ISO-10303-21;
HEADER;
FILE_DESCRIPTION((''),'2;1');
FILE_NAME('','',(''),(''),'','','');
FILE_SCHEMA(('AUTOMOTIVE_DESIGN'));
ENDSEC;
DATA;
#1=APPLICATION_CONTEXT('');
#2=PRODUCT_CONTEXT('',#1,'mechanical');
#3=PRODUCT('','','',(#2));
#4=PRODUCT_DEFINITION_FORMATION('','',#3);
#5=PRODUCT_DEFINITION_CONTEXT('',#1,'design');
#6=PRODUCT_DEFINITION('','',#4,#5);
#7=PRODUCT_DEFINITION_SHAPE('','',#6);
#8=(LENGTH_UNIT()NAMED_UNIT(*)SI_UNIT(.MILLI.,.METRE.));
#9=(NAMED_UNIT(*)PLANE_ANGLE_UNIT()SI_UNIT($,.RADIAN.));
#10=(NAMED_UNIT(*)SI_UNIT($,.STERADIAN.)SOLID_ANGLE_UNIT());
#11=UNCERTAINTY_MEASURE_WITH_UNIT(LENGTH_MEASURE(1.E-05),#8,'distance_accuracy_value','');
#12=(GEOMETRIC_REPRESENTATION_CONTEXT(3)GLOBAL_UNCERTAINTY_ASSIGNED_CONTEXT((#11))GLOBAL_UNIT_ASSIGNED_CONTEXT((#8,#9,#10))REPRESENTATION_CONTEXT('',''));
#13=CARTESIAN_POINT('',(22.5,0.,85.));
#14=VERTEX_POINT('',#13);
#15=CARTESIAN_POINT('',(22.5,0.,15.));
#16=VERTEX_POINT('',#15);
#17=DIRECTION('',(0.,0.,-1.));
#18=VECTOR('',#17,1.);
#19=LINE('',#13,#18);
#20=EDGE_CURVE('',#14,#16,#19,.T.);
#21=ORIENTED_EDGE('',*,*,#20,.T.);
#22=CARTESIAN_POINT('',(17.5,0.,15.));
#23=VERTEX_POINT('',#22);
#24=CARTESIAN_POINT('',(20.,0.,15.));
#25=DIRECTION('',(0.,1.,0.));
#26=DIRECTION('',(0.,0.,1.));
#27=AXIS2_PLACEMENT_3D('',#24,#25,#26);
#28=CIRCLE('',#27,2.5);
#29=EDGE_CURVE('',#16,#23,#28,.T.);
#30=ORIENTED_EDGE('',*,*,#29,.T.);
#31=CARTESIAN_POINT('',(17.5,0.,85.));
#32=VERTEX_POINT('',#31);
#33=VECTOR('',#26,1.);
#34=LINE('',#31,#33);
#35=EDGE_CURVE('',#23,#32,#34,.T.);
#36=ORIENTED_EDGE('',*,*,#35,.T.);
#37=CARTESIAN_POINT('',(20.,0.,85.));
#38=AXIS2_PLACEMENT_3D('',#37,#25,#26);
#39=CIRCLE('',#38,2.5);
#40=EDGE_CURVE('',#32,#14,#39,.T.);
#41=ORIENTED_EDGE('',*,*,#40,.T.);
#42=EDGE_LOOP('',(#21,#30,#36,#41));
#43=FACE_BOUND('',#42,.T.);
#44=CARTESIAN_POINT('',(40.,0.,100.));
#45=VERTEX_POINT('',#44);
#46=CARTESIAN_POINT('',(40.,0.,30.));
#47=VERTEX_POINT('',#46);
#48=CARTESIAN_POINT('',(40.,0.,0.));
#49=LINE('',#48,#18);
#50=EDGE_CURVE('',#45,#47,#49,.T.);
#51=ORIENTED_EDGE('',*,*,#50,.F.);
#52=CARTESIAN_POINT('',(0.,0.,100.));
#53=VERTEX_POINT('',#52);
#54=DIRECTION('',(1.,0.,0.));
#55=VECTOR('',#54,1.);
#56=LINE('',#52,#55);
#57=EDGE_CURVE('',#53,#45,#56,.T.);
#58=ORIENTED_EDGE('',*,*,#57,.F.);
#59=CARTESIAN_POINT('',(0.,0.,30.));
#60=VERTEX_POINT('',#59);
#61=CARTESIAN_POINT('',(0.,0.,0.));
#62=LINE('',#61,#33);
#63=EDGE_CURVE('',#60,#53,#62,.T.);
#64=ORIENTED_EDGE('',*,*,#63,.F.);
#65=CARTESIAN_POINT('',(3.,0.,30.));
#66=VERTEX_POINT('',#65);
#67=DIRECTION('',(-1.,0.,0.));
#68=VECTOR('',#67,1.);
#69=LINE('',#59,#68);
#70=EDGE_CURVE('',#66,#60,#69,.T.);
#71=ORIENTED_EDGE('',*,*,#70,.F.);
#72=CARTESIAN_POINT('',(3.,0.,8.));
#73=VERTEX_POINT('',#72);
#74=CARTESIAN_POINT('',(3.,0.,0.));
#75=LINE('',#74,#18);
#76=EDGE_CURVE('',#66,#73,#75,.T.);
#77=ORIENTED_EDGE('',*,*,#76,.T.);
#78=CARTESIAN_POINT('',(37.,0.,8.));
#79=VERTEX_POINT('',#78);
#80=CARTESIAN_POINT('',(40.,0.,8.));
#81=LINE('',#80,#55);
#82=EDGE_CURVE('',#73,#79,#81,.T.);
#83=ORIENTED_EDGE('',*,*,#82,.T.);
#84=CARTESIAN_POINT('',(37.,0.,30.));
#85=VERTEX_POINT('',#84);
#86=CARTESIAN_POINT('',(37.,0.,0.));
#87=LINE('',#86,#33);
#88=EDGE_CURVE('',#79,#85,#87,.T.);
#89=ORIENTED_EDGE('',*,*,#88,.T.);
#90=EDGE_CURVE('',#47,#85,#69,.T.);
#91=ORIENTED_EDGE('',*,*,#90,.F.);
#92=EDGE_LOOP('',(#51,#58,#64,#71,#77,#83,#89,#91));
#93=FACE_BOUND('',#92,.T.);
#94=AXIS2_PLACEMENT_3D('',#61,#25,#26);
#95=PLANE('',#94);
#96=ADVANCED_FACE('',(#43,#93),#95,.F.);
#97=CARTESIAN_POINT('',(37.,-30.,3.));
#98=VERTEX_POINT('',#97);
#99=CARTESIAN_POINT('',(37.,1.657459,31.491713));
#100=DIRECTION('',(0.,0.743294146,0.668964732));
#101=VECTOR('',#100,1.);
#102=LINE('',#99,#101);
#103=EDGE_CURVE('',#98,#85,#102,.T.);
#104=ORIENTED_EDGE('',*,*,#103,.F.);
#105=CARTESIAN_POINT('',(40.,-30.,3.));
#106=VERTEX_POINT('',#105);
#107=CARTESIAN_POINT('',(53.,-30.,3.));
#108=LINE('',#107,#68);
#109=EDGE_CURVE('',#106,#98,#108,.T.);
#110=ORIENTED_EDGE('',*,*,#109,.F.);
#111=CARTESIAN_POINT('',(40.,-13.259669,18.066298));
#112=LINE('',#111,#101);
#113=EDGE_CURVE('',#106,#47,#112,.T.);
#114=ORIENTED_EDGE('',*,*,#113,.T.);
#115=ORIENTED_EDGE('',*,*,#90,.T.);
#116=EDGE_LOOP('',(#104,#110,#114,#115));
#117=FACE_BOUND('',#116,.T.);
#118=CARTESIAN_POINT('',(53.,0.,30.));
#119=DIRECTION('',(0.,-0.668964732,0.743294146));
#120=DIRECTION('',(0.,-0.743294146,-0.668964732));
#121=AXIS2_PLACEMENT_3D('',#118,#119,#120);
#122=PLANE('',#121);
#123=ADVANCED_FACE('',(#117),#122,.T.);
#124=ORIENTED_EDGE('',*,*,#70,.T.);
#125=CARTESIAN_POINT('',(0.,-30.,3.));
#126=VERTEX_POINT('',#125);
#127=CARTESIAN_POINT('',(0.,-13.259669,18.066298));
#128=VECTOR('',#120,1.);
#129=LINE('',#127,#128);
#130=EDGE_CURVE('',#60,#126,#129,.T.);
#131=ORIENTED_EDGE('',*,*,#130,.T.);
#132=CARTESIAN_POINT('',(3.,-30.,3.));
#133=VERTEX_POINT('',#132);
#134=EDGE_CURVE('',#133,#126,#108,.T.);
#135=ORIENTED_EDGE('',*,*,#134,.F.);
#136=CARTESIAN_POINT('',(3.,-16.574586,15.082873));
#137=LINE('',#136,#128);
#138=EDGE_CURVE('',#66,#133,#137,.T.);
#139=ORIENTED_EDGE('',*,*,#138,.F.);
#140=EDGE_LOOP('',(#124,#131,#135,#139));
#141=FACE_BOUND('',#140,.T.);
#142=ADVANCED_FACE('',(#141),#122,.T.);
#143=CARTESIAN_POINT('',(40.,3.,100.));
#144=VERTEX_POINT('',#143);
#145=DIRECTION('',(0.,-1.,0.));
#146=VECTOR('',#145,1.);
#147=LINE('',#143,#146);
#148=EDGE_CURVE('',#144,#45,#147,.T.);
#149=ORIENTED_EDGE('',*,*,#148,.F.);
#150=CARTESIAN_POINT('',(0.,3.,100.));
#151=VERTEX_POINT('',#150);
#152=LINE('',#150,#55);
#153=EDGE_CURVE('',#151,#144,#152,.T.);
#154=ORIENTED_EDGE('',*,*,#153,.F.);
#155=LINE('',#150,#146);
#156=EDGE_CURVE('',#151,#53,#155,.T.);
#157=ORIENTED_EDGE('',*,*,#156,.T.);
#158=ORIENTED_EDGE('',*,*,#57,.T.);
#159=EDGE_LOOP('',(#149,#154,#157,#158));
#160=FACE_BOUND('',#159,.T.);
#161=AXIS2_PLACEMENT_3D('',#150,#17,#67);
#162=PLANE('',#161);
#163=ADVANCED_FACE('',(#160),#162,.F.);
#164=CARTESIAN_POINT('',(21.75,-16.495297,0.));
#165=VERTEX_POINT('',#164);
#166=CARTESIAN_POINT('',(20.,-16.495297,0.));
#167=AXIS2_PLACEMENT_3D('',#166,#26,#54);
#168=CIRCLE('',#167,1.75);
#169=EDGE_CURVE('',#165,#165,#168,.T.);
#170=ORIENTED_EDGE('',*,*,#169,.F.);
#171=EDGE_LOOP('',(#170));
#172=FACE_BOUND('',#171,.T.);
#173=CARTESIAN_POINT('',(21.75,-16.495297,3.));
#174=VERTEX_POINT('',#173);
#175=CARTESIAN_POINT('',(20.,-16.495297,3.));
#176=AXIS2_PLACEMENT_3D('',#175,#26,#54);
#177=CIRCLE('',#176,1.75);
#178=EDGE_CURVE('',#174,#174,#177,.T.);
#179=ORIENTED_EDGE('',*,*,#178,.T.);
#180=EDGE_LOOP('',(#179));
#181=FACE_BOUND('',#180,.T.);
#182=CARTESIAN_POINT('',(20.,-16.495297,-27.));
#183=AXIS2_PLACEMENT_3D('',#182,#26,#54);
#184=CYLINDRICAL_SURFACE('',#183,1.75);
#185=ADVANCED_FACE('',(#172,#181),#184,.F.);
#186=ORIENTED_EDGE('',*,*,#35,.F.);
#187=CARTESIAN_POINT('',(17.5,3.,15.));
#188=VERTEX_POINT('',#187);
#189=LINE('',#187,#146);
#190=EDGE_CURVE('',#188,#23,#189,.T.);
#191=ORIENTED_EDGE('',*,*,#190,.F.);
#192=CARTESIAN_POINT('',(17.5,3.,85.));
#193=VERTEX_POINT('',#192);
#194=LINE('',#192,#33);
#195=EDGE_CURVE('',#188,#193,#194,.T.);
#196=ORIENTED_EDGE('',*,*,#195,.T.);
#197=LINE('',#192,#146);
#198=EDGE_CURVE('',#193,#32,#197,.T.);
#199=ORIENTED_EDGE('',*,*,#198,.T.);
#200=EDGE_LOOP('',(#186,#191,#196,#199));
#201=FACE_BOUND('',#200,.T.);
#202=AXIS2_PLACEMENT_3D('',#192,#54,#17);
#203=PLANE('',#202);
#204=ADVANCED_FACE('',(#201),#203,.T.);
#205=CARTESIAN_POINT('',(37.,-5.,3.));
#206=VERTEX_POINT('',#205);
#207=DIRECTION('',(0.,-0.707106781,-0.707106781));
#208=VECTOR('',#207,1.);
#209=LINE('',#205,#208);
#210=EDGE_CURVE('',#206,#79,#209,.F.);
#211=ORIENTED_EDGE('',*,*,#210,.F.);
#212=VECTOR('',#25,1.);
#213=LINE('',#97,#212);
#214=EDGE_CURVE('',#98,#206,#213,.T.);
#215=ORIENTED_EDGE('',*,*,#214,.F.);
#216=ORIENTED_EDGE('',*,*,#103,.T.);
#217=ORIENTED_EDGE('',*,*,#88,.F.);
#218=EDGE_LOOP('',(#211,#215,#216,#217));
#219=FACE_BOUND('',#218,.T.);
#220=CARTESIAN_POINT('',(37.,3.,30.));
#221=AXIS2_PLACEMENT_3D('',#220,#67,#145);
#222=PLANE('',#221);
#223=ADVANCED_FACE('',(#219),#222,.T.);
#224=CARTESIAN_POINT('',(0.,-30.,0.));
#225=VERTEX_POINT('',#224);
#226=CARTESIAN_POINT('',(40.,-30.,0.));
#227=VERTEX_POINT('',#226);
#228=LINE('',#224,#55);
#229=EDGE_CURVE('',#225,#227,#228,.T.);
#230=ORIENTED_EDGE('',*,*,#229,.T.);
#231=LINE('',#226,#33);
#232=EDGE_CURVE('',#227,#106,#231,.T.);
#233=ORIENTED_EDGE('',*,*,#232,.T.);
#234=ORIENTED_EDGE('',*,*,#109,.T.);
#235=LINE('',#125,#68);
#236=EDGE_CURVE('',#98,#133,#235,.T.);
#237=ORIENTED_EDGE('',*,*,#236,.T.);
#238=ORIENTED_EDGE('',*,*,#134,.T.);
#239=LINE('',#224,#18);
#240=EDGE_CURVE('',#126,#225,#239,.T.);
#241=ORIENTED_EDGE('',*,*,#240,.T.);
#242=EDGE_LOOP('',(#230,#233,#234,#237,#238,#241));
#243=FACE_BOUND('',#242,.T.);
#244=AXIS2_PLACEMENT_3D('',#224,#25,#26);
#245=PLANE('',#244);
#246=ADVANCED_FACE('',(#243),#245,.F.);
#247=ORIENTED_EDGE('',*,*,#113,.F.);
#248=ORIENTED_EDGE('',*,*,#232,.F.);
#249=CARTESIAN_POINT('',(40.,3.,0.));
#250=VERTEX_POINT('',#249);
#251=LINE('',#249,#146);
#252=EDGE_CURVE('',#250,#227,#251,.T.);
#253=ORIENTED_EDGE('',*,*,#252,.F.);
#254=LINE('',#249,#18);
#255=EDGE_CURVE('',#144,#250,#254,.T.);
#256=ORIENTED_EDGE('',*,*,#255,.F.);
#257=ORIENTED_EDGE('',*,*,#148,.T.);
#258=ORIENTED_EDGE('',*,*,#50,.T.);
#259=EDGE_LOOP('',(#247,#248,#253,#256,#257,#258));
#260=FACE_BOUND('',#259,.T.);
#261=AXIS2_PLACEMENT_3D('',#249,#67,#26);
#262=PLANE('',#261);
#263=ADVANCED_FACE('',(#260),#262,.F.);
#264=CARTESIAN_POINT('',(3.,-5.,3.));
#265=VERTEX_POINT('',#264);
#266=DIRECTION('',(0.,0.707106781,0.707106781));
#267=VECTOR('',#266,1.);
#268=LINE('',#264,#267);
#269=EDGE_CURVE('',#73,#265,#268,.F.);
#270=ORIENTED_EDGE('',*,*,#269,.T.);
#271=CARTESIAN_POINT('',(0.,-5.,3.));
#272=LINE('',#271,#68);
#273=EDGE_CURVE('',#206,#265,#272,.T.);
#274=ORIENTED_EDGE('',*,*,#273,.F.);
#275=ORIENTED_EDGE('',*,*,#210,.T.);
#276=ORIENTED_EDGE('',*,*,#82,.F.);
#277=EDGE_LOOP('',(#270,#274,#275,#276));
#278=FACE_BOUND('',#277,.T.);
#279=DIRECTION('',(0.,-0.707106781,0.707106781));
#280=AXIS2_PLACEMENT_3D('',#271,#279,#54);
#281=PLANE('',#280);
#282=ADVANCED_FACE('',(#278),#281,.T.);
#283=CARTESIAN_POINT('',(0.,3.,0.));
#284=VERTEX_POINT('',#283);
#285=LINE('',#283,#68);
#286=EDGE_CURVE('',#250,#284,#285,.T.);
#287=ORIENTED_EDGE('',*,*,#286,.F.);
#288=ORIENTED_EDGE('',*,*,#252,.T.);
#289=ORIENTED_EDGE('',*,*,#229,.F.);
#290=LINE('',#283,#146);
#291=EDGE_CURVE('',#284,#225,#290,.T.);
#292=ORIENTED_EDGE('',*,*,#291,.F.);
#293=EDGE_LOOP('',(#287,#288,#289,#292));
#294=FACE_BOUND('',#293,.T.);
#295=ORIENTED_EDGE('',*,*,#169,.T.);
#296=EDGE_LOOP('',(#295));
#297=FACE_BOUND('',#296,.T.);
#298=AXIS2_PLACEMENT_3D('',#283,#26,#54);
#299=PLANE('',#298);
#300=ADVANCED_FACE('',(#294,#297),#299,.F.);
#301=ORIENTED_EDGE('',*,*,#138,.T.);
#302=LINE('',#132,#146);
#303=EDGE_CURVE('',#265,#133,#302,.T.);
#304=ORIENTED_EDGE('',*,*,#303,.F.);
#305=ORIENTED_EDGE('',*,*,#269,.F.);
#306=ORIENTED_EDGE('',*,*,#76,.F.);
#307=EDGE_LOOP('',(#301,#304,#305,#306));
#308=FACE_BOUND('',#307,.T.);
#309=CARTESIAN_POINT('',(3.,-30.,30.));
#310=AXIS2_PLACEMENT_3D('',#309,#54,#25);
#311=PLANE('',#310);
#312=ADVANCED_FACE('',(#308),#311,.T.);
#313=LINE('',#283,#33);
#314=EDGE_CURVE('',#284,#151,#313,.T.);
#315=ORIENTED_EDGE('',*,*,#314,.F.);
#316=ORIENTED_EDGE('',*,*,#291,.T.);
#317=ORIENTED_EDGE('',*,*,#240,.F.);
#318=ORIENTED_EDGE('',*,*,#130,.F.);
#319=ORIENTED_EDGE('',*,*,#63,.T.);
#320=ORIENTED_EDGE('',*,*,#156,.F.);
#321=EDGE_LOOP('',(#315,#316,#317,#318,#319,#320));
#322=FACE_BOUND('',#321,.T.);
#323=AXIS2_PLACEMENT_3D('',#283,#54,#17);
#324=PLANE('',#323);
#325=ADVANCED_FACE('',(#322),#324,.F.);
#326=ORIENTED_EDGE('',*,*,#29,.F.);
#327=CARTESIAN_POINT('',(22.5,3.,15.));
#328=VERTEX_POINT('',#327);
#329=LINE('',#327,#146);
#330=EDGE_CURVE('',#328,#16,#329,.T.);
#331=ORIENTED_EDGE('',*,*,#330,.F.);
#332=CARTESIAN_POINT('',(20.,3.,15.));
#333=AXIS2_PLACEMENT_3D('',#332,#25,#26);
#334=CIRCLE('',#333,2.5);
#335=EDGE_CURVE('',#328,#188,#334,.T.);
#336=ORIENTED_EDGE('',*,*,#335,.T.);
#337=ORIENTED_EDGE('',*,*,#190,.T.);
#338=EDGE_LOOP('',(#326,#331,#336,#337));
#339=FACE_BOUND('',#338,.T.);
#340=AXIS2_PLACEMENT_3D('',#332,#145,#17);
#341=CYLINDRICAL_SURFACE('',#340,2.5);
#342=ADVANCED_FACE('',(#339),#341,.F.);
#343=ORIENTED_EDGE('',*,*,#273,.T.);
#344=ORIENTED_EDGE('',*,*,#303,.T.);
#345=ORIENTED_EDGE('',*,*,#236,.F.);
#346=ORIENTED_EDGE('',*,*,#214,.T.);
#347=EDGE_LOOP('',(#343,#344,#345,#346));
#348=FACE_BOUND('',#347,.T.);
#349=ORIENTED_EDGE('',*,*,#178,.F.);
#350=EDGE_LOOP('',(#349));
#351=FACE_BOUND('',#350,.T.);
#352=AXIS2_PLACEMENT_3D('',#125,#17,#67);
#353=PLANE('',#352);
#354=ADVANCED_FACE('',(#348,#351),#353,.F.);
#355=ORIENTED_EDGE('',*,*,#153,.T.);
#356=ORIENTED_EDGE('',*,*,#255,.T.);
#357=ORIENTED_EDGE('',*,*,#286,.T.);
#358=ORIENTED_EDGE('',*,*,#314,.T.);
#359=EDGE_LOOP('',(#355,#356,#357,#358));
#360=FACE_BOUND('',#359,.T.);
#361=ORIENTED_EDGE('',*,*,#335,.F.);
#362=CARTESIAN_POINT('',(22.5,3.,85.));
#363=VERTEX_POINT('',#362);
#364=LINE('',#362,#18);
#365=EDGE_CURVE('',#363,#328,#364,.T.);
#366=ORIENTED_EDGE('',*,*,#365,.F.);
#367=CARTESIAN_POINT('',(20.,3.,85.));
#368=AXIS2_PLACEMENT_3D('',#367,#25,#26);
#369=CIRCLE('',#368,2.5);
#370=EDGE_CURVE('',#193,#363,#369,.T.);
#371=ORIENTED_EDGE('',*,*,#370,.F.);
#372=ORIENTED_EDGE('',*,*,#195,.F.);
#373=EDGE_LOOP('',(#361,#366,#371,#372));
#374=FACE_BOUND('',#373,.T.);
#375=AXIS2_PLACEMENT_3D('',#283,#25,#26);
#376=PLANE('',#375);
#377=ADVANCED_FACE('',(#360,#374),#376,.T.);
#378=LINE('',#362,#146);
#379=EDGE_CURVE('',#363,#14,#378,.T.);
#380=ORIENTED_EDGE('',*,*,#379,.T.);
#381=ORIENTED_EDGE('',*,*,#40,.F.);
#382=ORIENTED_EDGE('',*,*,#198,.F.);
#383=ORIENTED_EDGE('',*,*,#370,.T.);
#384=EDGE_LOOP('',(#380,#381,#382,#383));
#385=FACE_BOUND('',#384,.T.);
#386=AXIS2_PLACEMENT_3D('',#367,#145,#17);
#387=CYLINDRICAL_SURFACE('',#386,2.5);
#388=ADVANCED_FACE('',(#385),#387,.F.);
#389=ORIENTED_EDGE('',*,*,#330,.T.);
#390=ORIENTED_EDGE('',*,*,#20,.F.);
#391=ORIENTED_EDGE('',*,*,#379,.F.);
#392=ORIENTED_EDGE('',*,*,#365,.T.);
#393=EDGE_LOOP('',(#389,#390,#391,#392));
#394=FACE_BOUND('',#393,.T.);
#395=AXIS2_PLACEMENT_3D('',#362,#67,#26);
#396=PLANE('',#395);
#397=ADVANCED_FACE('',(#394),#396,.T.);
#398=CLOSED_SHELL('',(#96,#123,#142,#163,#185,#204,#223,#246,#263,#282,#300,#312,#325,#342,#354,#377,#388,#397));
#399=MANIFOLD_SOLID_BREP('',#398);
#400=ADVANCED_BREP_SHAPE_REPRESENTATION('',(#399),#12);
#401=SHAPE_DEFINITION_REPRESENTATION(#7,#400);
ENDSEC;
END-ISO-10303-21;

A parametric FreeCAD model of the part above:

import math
import FreeCAD as App
import Part
import Sketcher
Q = App.Units.Quantity


def edges_at(feature, points):
    """Names of the edges that pass closest to the given points."""
    edges = feature.Shape.Edges
    near = lambda p: min(range(len(edges)), key=lambda i: edges[i].distToShape(Part.Vertex(*p))[0])
    return sorted({f"Edge{near(p) + 1}" for p in points})


def add_polygon(sketch, points):
    """Adds a closed chain of lines whose ends are joined by coincident constraints."""
    first, n = sketch.GeometryCount, len(points)
    for a, b in zip(points, points[1:] + points[:1]):
        sketch.addGeometry(Part.LineSegment(App.Vector(*a, 0), App.Vector(*b, 0)), False)
    for i in range(n):
        sketch.addConstraint(Sketcher.Constraint("Coincident", first + i, 2, first + (i + 1) % n, 1))

doc = App.newDocument("Part")
params = doc.addObject("Spreadsheet::Sheet", "Params")
for row, (alias, value) in enumerate([
    ("sketch1_radius", "2.5 mm"),
    ("sketch1_width", "40 mm"),
    ("sketch1_height", "100 mm"),
    ("sketch1_height2", "70 mm"),
    ("pad1_length", "3 mm"),
    ("sketch2_width", "40 mm"),
    ("sketch2_height", "3 mm"),
    ("pad2_length", "30 mm"),
    ("chamfer_size", "5 mm"),
    ("sketch3_width", "3 mm"),
    ("sketch3_height", "33 mm"),
    ("pad3_length", "30 mm"),
    ("sketch4_width", "30 mm"),
    ("sketch4_height", "27 mm"),
    ("sketch5_diameter", "3.5 mm"),
    ("pocket2_length", "30 mm"),
], start=1):
    params.set(f"A{row}", alias)
    params.set(f"B{row}", "=" + value)
    params.setAlias(f"B{row}", alias)

body = doc.addObject("PartDesign::Body", "Body")

# Sketch on XZ plane
sketch1 = body.newObject("Sketcher::SketchObject", "Sketch")
sketch1.AttachmentSupport = (doc.getObject("XZ_Plane"), [""])
sketch1.MapMode = "FlatFace"
add_polygon(sketch1, [(0, 0), (0, 100), (40, 100), (40, 0)])  # lines 0-3
sketch1.addGeometry(Part.ArcOfCircle(Part.Circle(App.Vector(20, 85, 0), App.Vector(0, 0, 1), 2.5), math.radians(0), math.radians(180)), False)  # 4
sketch1.addGeometry(Part.LineSegment(App.Vector(17.5, 85, 0), App.Vector(17.5, 15, 0)), False)  # 5
sketch1.addGeometry(Part.ArcOfCircle(Part.Circle(App.Vector(20, 15, 0), App.Vector(0, 0, 1), 2.5), math.radians(180), math.radians(360)), False)  # 6
sketch1.addGeometry(Part.LineSegment(App.Vector(22.5, 15, 0), App.Vector(22.5, 85, 0)), False)  # 7
sketch1.addConstraint([
    Sketcher.Constraint("Tangent", 4, 2, 5, 1),
    Sketcher.Constraint("Tangent", 5, 2, 6, 1),
    Sketcher.Constraint("Tangent", 6, 2, 7, 1),
    Sketcher.Constraint("Tangent", 7, 2, 4, 1),
    Sketcher.Constraint("Vertical", 0),
    Sketcher.Constraint("Horizontal", 1),
    Sketcher.Constraint("Vertical", 2),
    Sketcher.Constraint("Horizontal", 3),
    Sketcher.Constraint("Vertical", 5),
    Sketcher.Constraint("Vertical", 7),
    Sketcher.Constraint("Coincident", 3, 2, -1, 1),
    Sketcher.Constraint("Radius", 4, Q("2.5 mm")),
    Sketcher.Constraint("DistanceX", 1, 1, 1, 2, Q("40 mm")),
    Sketcher.Constraint("DistanceY", 0, 1, 0, 2, Q("100 mm")),
    Sketcher.Constraint("DistanceY", 5, 2, 5, 1, Q("70 mm")),
    Sketcher.Constraint("DistanceX", -1, 1, 4, 3, Q("20 mm")),
    Sketcher.Constraint("DistanceY", -1, 1, 4, 3, Q("85 mm")),
])
sketch1.setExpression("Constraints[15]", "Params.sketch1_radius")
sketch1.setExpression("Constraints[16]", "Params.sketch1_width")
sketch1.setExpression("Constraints[17]", "Params.sketch1_height")
sketch1.setExpression("Constraints[18]", "Params.sketch1_height2")
pad1 = body.newObject("PartDesign::Pad", "Pad")
pad1.Profile = sketch1
pad1.setExpression("Length", "Params.pad1_length")
pad1.Reversed = True

# Sketch on XZ plane
sketch2 = body.newObject("Sketcher::SketchObject", "Sketch001")
sketch2.AttachmentSupport = (doc.getObject("XZ_Plane"), [""])
sketch2.MapMode = "FlatFace"
add_polygon(sketch2, [(0, 3), (0, 0), (40, 0), (40, 3)])  # lines 0-3
sketch2.addConstraint([
    Sketcher.Constraint("Vertical", 0),
    Sketcher.Constraint("Horizontal", 1),
    Sketcher.Constraint("Vertical", 2),
    Sketcher.Constraint("Horizontal", 3),
    Sketcher.Constraint("Coincident", 0, 2, -1, 1),
    Sketcher.Constraint("DistanceX", 1, 1, 1, 2, Q("40 mm")),
    Sketcher.Constraint("DistanceY", 0, 2, 0, 1, Q("3 mm")),
])
sketch2.setExpression("Constraints[9]", "Params.sketch2_width")
sketch2.setExpression("Constraints[10]", "Params.sketch2_height")
pad2 = body.newObject("PartDesign::Pad", "Pad001")
pad2.Profile = sketch2
pad2.setExpression("Length", "Params.pad2_length")
doc.recompute()

chamfer = body.newObject("PartDesign::Chamfer", "Chamfer")
chamfer.Base = (pad2, edges_at(pad2, [(20, 0, 3)]))
chamfer.setExpression("Size", "Params.chamfer_size")

# Sketch on XY plane
sketch3 = body.newObject("Sketcher::SketchObject", "Sketch002")
sketch3.AttachmentSupport = (doc.getObject("XY_Plane"), [""])
sketch3.MapMode = "FlatFace"
add_polygon(sketch3, [(3, 3), (3, -30), (0, -30), (0, 3)])  # lines 0-3
add_polygon(sketch3, [(40, 3), (40, -30), (37, -30), (37, 3)])  # lines 4-7
sketch3.addConstraint([
    Sketcher.Constraint("Vertical", 0),
    Sketcher.Constraint("Horizontal", 1),
    Sketcher.Constraint("Vertical", 2),
    Sketcher.Constraint("Horizontal", 3),
    Sketcher.Constraint("Vertical", 4),
    Sketcher.Constraint("Horizontal", 5),
    Sketcher.Constraint("Vertical", 6),
    Sketcher.Constraint("Horizontal", 7),
    Sketcher.Constraint("PointOnObject", 1, 2, -2),
    Sketcher.Constraint("Horizontal", 1, 2, 4, 2),
    Sketcher.Constraint("Horizontal", 3, 2, 6, 2),
    Sketcher.Constraint("Equal", 3, 5),
    Sketcher.Constraint("DistanceX", 1, 2, 1, 1, Q("3 mm")),
    Sketcher.Constraint("DistanceY", 0, 2, 0, 1, Q("33 mm")),
    Sketcher.Constraint("DistanceY", 0, 2, -1, 1, Q("30 mm")),
    Sketcher.Constraint("DistanceX", -1, 1, 4, 2, Q("40 mm")),
])
sketch3.setExpression("Constraints[20]", "Params.sketch3_width")
sketch3.setExpression("Constraints[21]", "Params.sketch3_height")
pad3 = body.newObject("PartDesign::Pad", "Pad002")
pad3.Profile = sketch3
pad3.setExpression("Length", "Params.pad3_length")

# Sketch on YZ plane
sketch4 = body.newObject("Sketcher::SketchObject", "Sketch003")
sketch4.AttachmentSupport = (doc.getObject("YZ_Plane"), [""])
sketch4.MapMode = "FlatFace"
sketch4.AttachmentOffset = App.Placement(App.Vector(0, 0, 3), App.Rotation())
add_polygon(sketch4, [(-30, 3), (0, 30), (-30, 30)])  # lines 0-2
sketch4.addConstraint([
    Sketcher.Constraint("Horizontal", 1),
    Sketcher.Constraint("Vertical", 2),
    Sketcher.Constraint("PointOnObject", 0, 2, -2),
    Sketcher.Constraint("DistanceX", 1, 2, 1, 1, Q("30 mm")),
    Sketcher.Constraint("DistanceY", 2, 2, 2, 1, Q("27 mm")),
    Sketcher.Constraint("DistanceY", -1, 1, 0, 2, Q("30 mm")),
])
sketch4.setExpression("Constraints[6]", "Params.sketch4_width")
sketch4.setExpression("Constraints[7]", "Params.sketch4_height")
pocket1 = body.newObject("PartDesign::Pocket", "Pocket")
pocket1.Profile = sketch4
pocket1.Type = "ThroughAll"
pocket1.Midplane = True

# Sketch on XY plane
sketch5 = body.newObject("Sketcher::SketchObject", "Sketch004")
sketch5.AttachmentSupport = (doc.getObject("XY_Plane"), [""])
sketch5.MapMode = "FlatFace"
sketch5.AttachmentOffset = App.Placement(App.Vector(0, 0, 3), App.Rotation())
sketch5.addGeometry(Part.Circle(App.Vector(20, -16.495297, 0), App.Vector(0, 0, 1), 1.75), False)
sketch5.addConstraint([
    Sketcher.Constraint("Diameter", 0, Q("3.5 mm")),
    Sketcher.Constraint("DistanceX", -1, 1, 0, 3, Q("20 mm")),
    Sketcher.Constraint("DistanceY", 0, 3, -1, 1, Q("16.495297 mm")),
])
sketch5.setExpression("Constraints[0]", "Params.sketch5_diameter")
pocket2 = body.newObject("PartDesign::Pocket", "Pocket001")
pocket2.Profile = sketch5
pocket2.setExpression("Length", "Params.pocket2_length")

doc.recompute()
